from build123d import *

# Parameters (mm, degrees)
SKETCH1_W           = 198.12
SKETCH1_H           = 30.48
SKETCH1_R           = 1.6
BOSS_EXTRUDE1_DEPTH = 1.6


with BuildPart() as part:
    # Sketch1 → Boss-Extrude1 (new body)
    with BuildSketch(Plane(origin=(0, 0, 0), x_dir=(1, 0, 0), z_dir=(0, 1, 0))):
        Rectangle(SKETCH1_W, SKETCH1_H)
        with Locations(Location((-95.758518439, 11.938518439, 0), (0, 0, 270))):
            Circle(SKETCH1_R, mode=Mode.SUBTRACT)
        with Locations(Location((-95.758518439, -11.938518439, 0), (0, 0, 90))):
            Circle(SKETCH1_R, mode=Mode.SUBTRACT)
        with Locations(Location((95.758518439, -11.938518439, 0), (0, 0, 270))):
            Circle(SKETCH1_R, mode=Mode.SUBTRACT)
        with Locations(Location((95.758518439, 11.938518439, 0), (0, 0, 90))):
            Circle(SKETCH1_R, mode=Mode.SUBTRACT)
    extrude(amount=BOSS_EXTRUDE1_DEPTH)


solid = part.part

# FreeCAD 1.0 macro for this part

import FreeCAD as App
import Part
import Sketcher

V = App.Vector
Q = App.Units.Quantity

doc = App.newDocument("Part")
body = doc.addObject("PartDesign::Body", "Body")

# Sketch on XZ plane
sketch1 = body.newObject("Sketcher::SketchObject", "Sketch")
sketch1.AttachmentSupport = (doc.getObject("XZ_Plane"), [""])
sketch1.MapMode = "FlatFace"
sketch1.addGeometry([
    Part.LineSegment(V(-99.1, -15.2, 0), V(-99.1, 15.2, 0)),  # 0
    Part.LineSegment(V(-99.1, 15.2, 0), V(99.1, 15.2, 0)),  # 1
    Part.LineSegment(V(99.1, 15.2, 0), V(99.1, -15.2, 0)),  # 2
    Part.LineSegment(V(99.1, -15.2, 0), V(-99.1, -15.2, 0)),  # 3
    Part.Circle(V(-95.8, 11.9, 0), V(0, 0, 1), 1.6),  # 4
    Part.Circle(V(95.8, 11.9, 0), V(0, 0, 1), 1.6),  # 5
    Part.Circle(V(-95.8, -11.9, 0), V(0, 0, 1), 1.6),  # 6
    Part.Circle(V(95.8, -11.9, 0), V(0, 0, 1), 1.6),  # 7
], False)
sketch1.addConstraint([
    Sketcher.Constraint("Coincident", 0, 2, 1, 1),
    Sketcher.Constraint("Coincident", 1, 2, 2, 1),
    Sketcher.Constraint("Coincident", 2, 2, 3, 1),
    Sketcher.Constraint("Coincident", 3, 2, 0, 1),
    Sketcher.Constraint("Vertical", 0),
    Sketcher.Constraint("Horizontal", 1),
    Sketcher.Constraint("Vertical", 2),
    Sketcher.Constraint("Horizontal", 3),
    Sketcher.Constraint("Equal", 4, 5),
    Sketcher.Constraint("Equal", 5, 6),
    Sketcher.Constraint("Equal", 6, 7),
    Sketcher.Constraint("Symmetric", 5, 3, 6, 3, -1, 1),
    Sketcher.Constraint("Symmetric", 4, 3, 7, 3, -1, 1),
    Sketcher.Constraint("Symmetric", 0, 2, 2, 2, -1, 1),
    Sketcher.Constraint("Symmetric", 4, 3, 5, 3, -2),
    Sketcher.Constraint("Diameter", 4, Q("3.2 mm")),
    Sketcher.Constraint("DistanceX", 1, 1, 1, 2, Q("198.12 mm")),
    Sketcher.Constraint("DistanceY", 0, 1, 0, 2, Q("30.48 mm")),
    Sketcher.Constraint("DistanceX", 4, 3, -1, 1, Q("95.758518 mm")),
    Sketcher.Constraint("DistanceY", -1, 1, 4, 3, Q("11.938518 mm")),
])
pad1 = body.newObject("PartDesign::Pad", "Pad")
pad1.Profile = sketch1
pad1.Length = 1.6
pad1.Reversed = True

doc.recompute()
